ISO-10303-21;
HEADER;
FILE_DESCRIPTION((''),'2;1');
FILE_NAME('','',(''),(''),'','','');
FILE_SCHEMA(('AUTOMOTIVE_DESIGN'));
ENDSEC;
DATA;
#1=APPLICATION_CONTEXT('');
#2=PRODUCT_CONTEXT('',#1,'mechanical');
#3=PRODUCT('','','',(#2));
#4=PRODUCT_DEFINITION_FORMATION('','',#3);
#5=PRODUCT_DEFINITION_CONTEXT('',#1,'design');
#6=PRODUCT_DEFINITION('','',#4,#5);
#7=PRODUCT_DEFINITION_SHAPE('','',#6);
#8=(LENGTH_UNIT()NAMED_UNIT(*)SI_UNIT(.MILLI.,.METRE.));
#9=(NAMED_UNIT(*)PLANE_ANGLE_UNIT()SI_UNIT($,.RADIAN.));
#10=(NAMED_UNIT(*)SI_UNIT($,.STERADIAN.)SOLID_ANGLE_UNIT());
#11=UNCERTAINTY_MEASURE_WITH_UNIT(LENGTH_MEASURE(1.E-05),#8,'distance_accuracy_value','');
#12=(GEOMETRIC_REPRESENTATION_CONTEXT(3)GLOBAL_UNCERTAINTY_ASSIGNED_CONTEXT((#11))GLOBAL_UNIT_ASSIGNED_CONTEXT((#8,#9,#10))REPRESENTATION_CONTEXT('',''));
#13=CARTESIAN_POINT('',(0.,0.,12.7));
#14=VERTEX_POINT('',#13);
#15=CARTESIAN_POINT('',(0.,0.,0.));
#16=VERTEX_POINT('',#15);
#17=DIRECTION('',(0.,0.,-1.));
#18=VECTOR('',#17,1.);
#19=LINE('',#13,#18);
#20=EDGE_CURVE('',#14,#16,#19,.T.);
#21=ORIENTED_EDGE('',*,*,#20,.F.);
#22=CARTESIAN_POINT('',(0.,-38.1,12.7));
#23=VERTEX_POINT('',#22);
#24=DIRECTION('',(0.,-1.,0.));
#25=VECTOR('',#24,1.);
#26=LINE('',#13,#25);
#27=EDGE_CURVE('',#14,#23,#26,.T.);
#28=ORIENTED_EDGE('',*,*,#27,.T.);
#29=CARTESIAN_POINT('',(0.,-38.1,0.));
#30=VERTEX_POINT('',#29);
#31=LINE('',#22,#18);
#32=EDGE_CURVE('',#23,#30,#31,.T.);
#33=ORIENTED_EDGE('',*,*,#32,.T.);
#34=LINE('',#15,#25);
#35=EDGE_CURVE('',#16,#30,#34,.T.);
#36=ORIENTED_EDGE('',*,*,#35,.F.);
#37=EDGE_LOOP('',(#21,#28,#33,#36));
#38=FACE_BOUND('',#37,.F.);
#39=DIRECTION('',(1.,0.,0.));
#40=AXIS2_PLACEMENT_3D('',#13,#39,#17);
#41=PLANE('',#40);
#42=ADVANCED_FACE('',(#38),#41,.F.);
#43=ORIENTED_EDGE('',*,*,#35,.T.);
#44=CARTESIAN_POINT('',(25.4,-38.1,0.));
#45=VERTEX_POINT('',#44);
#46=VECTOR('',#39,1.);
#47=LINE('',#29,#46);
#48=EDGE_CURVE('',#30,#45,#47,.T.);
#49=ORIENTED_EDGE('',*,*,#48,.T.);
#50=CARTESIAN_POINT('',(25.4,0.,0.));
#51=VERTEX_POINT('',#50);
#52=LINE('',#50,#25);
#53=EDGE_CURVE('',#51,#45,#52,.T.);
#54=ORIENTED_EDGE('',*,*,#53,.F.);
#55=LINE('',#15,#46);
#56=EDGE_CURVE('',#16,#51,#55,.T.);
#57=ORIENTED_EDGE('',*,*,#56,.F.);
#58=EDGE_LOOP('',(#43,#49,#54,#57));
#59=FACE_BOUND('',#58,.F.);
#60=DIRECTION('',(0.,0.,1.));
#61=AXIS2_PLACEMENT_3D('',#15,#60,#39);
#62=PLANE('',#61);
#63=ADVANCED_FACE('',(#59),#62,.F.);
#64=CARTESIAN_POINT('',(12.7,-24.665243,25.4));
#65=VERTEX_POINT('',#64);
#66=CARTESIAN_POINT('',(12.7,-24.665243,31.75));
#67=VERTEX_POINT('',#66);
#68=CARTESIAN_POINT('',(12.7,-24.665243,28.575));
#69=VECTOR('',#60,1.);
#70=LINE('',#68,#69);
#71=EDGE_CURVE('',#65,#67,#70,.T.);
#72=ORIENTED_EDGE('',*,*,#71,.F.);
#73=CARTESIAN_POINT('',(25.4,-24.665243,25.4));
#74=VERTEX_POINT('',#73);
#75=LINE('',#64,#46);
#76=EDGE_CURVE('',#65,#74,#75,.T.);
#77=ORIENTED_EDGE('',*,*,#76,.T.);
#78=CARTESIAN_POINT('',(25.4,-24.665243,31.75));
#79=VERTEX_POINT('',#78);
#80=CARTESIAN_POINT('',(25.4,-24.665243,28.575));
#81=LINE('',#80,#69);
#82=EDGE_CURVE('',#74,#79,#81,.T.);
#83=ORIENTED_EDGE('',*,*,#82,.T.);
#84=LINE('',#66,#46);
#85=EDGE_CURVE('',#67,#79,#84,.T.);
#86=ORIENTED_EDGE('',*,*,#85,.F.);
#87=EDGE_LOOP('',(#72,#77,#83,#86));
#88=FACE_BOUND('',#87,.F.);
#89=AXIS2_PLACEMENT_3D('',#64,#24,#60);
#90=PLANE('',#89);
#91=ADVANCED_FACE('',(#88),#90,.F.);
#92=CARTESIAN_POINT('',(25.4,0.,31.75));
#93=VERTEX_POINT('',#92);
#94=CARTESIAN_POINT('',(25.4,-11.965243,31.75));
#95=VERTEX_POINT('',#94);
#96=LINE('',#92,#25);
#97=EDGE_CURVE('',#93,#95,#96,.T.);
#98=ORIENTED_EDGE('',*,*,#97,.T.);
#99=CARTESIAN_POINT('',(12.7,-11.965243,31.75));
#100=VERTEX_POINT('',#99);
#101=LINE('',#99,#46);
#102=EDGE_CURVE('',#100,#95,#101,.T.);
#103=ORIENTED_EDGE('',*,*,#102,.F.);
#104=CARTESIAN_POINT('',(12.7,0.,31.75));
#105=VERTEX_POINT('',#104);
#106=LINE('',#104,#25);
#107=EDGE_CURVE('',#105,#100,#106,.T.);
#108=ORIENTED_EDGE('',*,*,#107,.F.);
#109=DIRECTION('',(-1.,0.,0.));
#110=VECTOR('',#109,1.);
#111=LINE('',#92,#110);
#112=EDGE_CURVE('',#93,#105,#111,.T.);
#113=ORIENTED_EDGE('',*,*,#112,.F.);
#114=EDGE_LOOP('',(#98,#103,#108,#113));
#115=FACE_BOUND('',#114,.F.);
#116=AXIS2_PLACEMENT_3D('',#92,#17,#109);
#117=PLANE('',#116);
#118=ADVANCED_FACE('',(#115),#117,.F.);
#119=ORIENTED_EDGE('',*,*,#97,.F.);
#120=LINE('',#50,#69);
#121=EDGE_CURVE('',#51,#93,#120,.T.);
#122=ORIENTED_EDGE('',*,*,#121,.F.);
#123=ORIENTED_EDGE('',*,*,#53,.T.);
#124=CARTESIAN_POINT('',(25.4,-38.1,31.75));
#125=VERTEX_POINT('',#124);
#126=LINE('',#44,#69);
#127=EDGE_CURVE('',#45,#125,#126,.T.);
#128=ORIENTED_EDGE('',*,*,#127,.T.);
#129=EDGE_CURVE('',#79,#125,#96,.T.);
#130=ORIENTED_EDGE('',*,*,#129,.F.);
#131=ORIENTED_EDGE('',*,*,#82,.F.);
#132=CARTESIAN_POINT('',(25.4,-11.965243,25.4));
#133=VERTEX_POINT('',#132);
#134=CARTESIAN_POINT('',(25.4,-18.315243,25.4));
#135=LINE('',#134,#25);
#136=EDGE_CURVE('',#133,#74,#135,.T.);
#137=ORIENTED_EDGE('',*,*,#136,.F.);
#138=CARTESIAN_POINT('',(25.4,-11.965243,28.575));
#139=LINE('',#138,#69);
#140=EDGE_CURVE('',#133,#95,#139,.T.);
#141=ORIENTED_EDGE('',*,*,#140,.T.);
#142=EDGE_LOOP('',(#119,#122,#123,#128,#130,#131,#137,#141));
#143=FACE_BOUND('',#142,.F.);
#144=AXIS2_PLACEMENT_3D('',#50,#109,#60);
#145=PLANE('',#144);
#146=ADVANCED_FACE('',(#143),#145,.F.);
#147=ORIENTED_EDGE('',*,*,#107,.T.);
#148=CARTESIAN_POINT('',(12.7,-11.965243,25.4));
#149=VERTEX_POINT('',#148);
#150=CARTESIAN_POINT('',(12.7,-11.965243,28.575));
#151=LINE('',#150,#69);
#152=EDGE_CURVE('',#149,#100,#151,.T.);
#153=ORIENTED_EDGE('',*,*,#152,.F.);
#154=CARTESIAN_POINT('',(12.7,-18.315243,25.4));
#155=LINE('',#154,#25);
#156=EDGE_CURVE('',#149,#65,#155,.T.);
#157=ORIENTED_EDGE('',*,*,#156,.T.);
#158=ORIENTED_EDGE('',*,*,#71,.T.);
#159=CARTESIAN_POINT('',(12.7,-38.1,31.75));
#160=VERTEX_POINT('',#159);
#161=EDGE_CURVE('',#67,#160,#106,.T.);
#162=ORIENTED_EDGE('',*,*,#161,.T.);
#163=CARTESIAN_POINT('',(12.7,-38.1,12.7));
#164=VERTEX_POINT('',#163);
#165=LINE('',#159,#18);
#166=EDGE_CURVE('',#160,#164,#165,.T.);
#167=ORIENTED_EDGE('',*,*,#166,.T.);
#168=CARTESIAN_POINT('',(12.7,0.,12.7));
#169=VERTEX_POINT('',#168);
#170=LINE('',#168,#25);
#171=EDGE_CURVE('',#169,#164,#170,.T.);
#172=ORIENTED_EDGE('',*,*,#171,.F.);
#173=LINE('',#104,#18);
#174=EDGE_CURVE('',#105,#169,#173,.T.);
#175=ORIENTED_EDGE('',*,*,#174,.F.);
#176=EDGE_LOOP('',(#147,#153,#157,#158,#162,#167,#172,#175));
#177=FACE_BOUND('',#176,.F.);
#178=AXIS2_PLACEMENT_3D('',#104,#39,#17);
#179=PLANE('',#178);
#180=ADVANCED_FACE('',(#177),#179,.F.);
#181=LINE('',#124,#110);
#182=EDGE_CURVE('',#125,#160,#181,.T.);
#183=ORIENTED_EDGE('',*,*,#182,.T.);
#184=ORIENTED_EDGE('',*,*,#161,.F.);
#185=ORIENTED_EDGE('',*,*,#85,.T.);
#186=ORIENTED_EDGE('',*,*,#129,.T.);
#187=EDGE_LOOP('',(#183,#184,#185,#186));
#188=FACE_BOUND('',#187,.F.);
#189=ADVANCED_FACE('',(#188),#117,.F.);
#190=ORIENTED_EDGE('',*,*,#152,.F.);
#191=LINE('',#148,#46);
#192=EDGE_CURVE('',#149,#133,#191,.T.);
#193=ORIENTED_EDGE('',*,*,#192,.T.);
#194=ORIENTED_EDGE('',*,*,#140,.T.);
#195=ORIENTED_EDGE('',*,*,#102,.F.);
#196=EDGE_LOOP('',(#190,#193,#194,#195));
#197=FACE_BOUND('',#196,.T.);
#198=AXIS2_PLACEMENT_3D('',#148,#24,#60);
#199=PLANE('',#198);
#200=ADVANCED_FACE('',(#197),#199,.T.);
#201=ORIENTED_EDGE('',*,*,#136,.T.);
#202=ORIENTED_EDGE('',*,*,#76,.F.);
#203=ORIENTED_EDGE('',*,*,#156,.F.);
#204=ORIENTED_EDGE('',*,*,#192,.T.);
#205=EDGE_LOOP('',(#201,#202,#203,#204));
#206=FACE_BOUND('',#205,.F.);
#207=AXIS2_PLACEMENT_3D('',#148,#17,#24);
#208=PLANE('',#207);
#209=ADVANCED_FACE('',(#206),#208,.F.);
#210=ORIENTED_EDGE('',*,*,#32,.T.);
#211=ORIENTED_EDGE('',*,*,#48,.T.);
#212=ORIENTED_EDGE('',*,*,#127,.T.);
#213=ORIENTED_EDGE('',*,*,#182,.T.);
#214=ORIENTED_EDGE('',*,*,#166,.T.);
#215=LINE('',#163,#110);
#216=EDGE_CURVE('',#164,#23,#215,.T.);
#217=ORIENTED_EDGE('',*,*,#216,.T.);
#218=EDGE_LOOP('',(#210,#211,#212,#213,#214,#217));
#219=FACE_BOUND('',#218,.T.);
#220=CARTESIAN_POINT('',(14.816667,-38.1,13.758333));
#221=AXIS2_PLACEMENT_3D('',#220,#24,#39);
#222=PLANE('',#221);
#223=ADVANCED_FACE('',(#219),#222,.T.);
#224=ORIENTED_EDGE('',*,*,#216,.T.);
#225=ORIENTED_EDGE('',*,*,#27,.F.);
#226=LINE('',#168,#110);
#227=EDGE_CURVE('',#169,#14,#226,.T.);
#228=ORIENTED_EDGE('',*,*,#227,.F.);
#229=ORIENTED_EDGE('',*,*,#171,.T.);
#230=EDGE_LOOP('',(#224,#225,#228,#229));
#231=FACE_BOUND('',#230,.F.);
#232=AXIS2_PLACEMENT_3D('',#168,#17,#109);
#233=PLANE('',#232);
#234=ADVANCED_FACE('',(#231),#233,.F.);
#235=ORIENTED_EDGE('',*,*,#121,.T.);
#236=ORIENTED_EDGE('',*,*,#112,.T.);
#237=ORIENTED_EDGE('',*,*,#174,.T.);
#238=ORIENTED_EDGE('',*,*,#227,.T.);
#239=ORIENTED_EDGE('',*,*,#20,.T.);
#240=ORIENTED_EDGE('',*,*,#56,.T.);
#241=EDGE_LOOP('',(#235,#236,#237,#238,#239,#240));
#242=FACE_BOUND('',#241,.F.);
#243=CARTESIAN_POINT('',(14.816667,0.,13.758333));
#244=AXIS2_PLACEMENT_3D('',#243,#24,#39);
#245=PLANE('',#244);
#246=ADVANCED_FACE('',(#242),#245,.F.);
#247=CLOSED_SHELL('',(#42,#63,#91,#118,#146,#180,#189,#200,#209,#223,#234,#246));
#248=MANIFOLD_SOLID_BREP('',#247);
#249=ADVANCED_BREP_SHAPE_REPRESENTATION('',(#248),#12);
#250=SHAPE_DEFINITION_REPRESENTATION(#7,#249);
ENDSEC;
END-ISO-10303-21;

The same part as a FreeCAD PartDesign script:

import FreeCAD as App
import Part
import Sketcher

V = App.Vector
Q = App.Units.Quantity

doc = App.newDocument("Part")
params = doc.addObject("Spreadsheet::Sheet", "Params")
for row, (alias, value) in enumerate([
    ("sketch1_width", "1 in"),
    ("sketch1_height", "1.25 in"),
    ("pad1_length", "1.5 in"),
    ("sketch2_width", "0.5 in"),
    ("sketch2_height", "0.25 in"),
    ("pocket1_length", "0.5 in"),
], start=1):
    params.set(f"A{row}", alias)
    params.set(f"B{row}", "=" + value)
    params.setAlias(f"B{row}", alias)

body = doc.addObject("PartDesign::Body", "Body")

sketch1 = doc.addObject("Sketcher::SketchObject", "Sketch")
body.addObject(sketch1)
sketch1.AttachmentSupport = (doc.XZ_Plane, [""])
sketch1.MapMode = "FlatFace"
sketch1.addGeometry(Part.LineSegment(V(0, 13, 0), V(0, 0, 0)), False)
sketch1.addGeometry(Part.LineSegment(V(0, 0, 0), V(25, 0, 0)), False)
sketch1.addGeometry(Part.LineSegment(V(25, 0, 0), V(25, 32, 0)), False)
sketch1.addGeometry(Part.LineSegment(V(25, 32, 0), V(13, 32, 0)), False)
sketch1.addGeometry(Part.LineSegment(V(13, 32, 0), V(13, 13, 0)), False)
sketch1.addGeometry(Part.LineSegment(V(13, 13, 0), V(0, 13, 0)), False)
sketch1.addConstraint(Sketcher.Constraint("Coincident", 0, 2, 1, 1))
sketch1.addConstraint(Sketcher.Constraint("Coincident", 1, 2, 2, 1))
sketch1.addConstraint(Sketcher.Constraint("Coincident", 2, 2, 3, 1))
sketch1.addConstraint(Sketcher.Constraint("Coincident", 3, 2, 4, 1))
sketch1.addConstraint(Sketcher.Constraint("Coincident", 4, 2, 5, 1))
sketch1.addConstraint(Sketcher.Constraint("Coincident", 5, 2, 0, 1))
sketch1.addConstraint(Sketcher.Constraint("Vertical", 0))
sketch1.addConstraint(Sketcher.Constraint("Horizontal", 1))
sketch1.addConstraint(Sketcher.Constraint("Vertical", 2))
sketch1.addConstraint(Sketcher.Constraint("Horizontal", 3))
sketch1.addConstraint(Sketcher.Constraint("Vertical", 4))
sketch1.addConstraint(Sketcher.Constraint("Horizontal", 5))
sketch1.addConstraint(Sketcher.Constraint("Coincident", 0, 2, -1, 1))
sketch1.addConstraint(Sketcher.Constraint("Equal", 3, 5))
sketch1.addConstraint(Sketcher.Constraint("Equal", 5, 0))
sketch1.addConstraint(Sketcher.Constraint("DistanceX", 1, 1, 1, 2, Q("1 in")))
sketch1.addConstraint(Sketcher.Constraint("DistanceY", 2, 1, 2, 2, Q("1.25 in")))
sketch1.setExpression("Constraints[15]", "Params.sketch1_width")
sketch1.setExpression("Constraints[16]", "Params.sketch1_height")
pad1 = doc.addObject("PartDesign::Pad", "Pad")
body.addObject(pad1)
pad1.Profile = sketch1
pad1.setExpression("Length", "Params.pad1_length")

sketch2 = doc.addObject("Sketcher::SketchObject", "Sketch001")
body.addObject(sketch2)
sketch2.AttachmentSupport = (doc.YZ_Plane, [""])
sketch2.MapMode = "FlatFace"
sketch2.AttachmentOffset = App.Placement(V(0, 0, 0.5 * 25.4), App.Rotation())
sketch2.addGeometry(Part.LineSegment(V(-12, 32, 0), V(-12, 25, 0)), False)
sketch2.addGeometry(Part.LineSegment(V(-12, 25, 0), V(-25, 25, 0)), False)
sketch2.addGeometry(Part.LineSegment(V(-25, 25, 0), V(-25, 32, 0)), False)
sketch2.addGeometry(Part.LineSegment(V(-25, 32, 0), V(-12, 32, 0)), False)
sketch2.addConstraint(Sketcher.Constraint("Coincident", 0, 2, 1, 1))
sketch2.addConstraint(Sketcher.Constraint("Coincident", 1, 2, 2, 1))
sketch2.addConstraint(Sketcher.Constraint("Coincident", 2, 2, 3, 1))
sketch2.addConstraint(Sketcher.Constraint("Coincident", 3, 2, 0, 1))
sketch2.addConstraint(Sketcher.Constraint("Vertical", 0))
sketch2.addConstraint(Sketcher.Constraint("Horizontal", 1))
sketch2.addConstraint(Sketcher.Constraint("Vertical", 2))
sketch2.addConstraint(Sketcher.Constraint("Horizontal", 3))
sketch2.addConstraint(Sketcher.Constraint("DistanceX", 1, 2, 1, 1, Q("0.5 in")))
sketch2.addConstraint(Sketcher.Constraint("DistanceY", -1, 1, 0, 2, Q("1 in")))
sketch2.addConstraint(Sketcher.Constraint("DistanceY", 0, 2, 0, 1, Q("0.25 in")))
sketch2.addConstraint(Sketcher.Constraint("DistanceX", 0, 2, -1, 1, 11.965243))
sketch2.setExpression("Constraints[8]", "Params.sketch2_width")
sketch2.setExpression("Constraints[10]", "Params.sketch2_height")
pocket1 = doc.addObject("PartDesign::Pocket", "Pocket")
body.addObject(pocket1)
pocket1.Profile = sketch2
pocket1.setExpression("Length", "Params.pocket1_length")
pocket1.Reversed = True

doc.recompute()
